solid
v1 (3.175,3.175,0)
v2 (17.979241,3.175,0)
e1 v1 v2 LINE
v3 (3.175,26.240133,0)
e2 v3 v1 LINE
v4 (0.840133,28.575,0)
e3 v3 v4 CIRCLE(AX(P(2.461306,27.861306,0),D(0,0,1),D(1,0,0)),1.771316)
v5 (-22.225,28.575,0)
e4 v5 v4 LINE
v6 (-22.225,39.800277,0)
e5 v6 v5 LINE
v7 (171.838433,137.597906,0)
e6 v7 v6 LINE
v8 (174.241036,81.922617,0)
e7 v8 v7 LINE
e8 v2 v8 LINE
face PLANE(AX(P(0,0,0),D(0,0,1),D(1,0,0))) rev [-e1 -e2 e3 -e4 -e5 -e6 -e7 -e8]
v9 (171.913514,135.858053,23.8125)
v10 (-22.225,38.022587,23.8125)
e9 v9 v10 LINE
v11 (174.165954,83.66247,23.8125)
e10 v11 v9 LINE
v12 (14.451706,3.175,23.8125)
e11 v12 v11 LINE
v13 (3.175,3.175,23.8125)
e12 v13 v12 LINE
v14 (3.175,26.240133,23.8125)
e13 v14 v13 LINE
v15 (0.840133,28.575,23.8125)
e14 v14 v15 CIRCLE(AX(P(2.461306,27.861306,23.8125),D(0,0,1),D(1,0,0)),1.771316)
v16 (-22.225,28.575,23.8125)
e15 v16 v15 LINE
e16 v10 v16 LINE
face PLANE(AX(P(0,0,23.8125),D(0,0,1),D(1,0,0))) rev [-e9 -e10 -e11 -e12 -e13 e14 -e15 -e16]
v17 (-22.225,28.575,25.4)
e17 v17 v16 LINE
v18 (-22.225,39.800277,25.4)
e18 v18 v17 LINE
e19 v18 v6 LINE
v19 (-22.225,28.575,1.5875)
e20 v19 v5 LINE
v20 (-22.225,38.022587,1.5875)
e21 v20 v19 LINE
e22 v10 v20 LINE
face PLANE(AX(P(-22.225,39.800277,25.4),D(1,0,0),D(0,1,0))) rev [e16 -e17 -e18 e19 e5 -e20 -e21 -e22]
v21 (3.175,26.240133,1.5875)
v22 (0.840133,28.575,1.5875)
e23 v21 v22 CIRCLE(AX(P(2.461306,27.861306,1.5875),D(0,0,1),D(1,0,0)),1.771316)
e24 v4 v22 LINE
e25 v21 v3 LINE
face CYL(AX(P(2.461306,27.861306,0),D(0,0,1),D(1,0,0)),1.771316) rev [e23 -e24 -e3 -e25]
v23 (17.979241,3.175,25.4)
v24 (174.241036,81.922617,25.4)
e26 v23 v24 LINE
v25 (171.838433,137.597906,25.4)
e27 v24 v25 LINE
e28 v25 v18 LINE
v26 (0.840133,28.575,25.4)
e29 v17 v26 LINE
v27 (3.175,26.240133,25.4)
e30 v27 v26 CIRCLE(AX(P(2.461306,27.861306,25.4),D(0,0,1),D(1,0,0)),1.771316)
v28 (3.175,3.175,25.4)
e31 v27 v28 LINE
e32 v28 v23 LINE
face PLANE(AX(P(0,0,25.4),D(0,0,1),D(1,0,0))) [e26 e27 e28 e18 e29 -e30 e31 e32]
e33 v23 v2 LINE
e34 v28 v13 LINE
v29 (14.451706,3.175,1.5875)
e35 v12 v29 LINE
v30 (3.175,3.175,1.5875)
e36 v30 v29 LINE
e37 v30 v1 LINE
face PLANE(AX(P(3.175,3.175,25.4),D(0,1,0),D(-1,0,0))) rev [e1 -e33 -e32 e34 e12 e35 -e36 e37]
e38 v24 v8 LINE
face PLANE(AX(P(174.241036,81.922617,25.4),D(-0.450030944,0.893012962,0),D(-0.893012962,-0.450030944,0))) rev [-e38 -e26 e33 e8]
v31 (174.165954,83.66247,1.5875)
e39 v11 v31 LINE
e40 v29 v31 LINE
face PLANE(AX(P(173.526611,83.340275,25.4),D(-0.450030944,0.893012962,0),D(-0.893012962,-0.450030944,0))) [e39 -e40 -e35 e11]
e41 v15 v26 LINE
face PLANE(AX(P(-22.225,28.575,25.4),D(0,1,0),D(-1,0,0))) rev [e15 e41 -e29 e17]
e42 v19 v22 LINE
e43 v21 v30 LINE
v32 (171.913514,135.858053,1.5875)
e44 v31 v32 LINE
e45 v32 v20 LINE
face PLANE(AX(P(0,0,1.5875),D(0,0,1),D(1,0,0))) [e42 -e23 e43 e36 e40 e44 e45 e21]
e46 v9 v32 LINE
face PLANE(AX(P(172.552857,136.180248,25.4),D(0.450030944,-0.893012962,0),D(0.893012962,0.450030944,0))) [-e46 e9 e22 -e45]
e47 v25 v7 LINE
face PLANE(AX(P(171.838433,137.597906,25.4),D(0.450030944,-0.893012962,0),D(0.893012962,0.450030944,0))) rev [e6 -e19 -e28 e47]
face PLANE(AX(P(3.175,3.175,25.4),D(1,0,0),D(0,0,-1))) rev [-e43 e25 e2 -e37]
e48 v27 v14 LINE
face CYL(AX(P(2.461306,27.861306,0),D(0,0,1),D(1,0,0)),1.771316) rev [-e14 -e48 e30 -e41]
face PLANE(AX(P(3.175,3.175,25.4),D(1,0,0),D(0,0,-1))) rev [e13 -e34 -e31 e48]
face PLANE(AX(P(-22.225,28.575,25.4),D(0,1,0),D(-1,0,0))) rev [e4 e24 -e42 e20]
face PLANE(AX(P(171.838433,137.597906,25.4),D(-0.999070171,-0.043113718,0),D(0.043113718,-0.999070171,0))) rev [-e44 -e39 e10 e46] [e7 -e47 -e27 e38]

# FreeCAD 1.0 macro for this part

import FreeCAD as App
import Part
import Sketcher
from FreeCAD import Vector
Q = App.Units.Quantity


def faces_at(feature, points):
    """Names of the faces that lie closest to the given points."""
    faces = feature.Shape.Faces
    near = lambda p: min(range(len(faces)), key=lambda i: faces[i].distToShape(Part.Vertex(*p))[0])
    return sorted({f"Face{near(p) + 1}" for p in points})


def add_polygon(sketch, points):
    """Adds a closed chain of lines whose ends are joined by coincident constraints."""
    first, n = sketch.GeometryCount, len(points)
    for a, b in zip(points, points[1:] + points[:1]):
        sketch.addGeometry(Part.LineSegment(App.Vector(*a, 0), App.Vector(*b, 0)), False)
    for i in range(n):
        sketch.addConstraint(Sketcher.Constraint("Coincident", first + i, 2, first + (i + 1) % n, 1))

doc = App.newDocument("Part")
params = doc.addObject("Spreadsheet::Sheet", "Params")
for row, (alias, value) in enumerate([
    ("sketch1_width", "1 in"),
    ("pad1_length", "1 in"),
    ("thickness_wall", "0.0625 in"),
], start=1):
    params.set(f"A{row}", alias)
    params.set(f"B{row}", "=" + value)
    params.setAlias(f"B{row}", alias)

body = doc.addObject("PartDesign::Body", "Body")

# Sketch on XY plane
sketch1 = body.newObject("Sketcher::SketchObject", "Sketch")
sketch1.AttachmentSupport = (doc.getObject("XY_Plane"), [""])
sketch1.MapMode = "FlatFace"
add_polygon(sketch1, [(171.838433, 137.597906), (-22.225, 39.800277), (-22.225, 28.575), (3.175, 28.575), (3.175, 3.175), (17.979241, 3.175), (174.241036, 81.922617)])  # lines 0-6
sketch1.addConstraint([
    Sketcher.Constraint("Vertical", 1),
    Sketcher.Constraint("Horizontal", 2),
    Sketcher.Constraint("Vertical", 3),
    Sketcher.Constraint("Horizontal", 4),
    Sketcher.Constraint("Parallel", 0, 5),
    Sketcher.Constraint("Equal", 2, 3),
    Sketcher.Constraint("DistanceX", 2, 1, 2, 2, Q("1 in")),
    Sketcher.Constraint("DistanceX", 0, 2, -1, 1, Q("0.875 in")),
    Sketcher.Constraint("DistanceY", -1, 1, 1, 2, Q("1.125 in")),
    Sketcher.Constraint("DistanceY", -1, 1, 5, 2, Q("3.2252999 in")),
    Sketcher.Constraint("DistanceX", 4, 1, 4, 2, Q("14.804241 mm")),
    Sketcher.Constraint("Distance", 0, Q("217.31312 mm")),
    Sketcher.Constraint("Distance", 5, Q("174.982672 mm")),
    Sketcher.Constraint("DistanceY", 1, 2, 1, 1, Q("11.225277 mm")),
])
sketch1.setExpression("Constraints[13]", "Params.sketch1_width")
pad1 = body.newObject("PartDesign::Pad", "Pad")
pad1.Profile = sketch1
pad1.setExpression("Length", "Params.pad1_length")
doc.recompute()

thickness = body.newObject("PartDesign::Thickness", "Thickness")
thickness.Base = (pad1, faces_at(pad1, [
    (10.577, 3.175, 12.7),
    (3.175, 15.875, 12.7),
    (-9.525, 28.575, 12.7),
    (-22.225, 34.188, 12.7),
    (173.04, 109.76, 12.7),
]))
thickness.setExpression("Value", "Params.thickness_wall")
thickness.Reversed = True
thickness.Join = "Intersection"

# Sketch on XY plane
sketch2 = body.newObject("Sketcher::SketchObject", "Sketch001")
sketch2.AttachmentSupport = (doc.getObject("XY_Plane"), [""])
sketch2.MapMode = "FlatFace"
sketch2.AttachmentOffset = App.Placement(Vector(0, 0, 1 * 25.4), App.Rotation())
sketch2.addGeometry(Part.Circle(Vector(2.461306, 27.861306, 0), Vector(0, 0, 1), 1.771316), False)
sketch2.addConstraint([
    Sketcher.Constraint("Diameter", 0, Q("3.542632 mm")),
    Sketcher.Constraint("DistanceX", -1, 1, 0, 3, Q("2.461306 mm")),
    Sketcher.Constraint("DistanceY", -1, 1, 0, 3, Q("27.861306 mm")),
])
pocket1 = body.newObject("PartDesign::Pocket", "Pocket")
pocket1.Profile = sketch2
pocket1.Type = "ThroughAll"

doc.recompute()
